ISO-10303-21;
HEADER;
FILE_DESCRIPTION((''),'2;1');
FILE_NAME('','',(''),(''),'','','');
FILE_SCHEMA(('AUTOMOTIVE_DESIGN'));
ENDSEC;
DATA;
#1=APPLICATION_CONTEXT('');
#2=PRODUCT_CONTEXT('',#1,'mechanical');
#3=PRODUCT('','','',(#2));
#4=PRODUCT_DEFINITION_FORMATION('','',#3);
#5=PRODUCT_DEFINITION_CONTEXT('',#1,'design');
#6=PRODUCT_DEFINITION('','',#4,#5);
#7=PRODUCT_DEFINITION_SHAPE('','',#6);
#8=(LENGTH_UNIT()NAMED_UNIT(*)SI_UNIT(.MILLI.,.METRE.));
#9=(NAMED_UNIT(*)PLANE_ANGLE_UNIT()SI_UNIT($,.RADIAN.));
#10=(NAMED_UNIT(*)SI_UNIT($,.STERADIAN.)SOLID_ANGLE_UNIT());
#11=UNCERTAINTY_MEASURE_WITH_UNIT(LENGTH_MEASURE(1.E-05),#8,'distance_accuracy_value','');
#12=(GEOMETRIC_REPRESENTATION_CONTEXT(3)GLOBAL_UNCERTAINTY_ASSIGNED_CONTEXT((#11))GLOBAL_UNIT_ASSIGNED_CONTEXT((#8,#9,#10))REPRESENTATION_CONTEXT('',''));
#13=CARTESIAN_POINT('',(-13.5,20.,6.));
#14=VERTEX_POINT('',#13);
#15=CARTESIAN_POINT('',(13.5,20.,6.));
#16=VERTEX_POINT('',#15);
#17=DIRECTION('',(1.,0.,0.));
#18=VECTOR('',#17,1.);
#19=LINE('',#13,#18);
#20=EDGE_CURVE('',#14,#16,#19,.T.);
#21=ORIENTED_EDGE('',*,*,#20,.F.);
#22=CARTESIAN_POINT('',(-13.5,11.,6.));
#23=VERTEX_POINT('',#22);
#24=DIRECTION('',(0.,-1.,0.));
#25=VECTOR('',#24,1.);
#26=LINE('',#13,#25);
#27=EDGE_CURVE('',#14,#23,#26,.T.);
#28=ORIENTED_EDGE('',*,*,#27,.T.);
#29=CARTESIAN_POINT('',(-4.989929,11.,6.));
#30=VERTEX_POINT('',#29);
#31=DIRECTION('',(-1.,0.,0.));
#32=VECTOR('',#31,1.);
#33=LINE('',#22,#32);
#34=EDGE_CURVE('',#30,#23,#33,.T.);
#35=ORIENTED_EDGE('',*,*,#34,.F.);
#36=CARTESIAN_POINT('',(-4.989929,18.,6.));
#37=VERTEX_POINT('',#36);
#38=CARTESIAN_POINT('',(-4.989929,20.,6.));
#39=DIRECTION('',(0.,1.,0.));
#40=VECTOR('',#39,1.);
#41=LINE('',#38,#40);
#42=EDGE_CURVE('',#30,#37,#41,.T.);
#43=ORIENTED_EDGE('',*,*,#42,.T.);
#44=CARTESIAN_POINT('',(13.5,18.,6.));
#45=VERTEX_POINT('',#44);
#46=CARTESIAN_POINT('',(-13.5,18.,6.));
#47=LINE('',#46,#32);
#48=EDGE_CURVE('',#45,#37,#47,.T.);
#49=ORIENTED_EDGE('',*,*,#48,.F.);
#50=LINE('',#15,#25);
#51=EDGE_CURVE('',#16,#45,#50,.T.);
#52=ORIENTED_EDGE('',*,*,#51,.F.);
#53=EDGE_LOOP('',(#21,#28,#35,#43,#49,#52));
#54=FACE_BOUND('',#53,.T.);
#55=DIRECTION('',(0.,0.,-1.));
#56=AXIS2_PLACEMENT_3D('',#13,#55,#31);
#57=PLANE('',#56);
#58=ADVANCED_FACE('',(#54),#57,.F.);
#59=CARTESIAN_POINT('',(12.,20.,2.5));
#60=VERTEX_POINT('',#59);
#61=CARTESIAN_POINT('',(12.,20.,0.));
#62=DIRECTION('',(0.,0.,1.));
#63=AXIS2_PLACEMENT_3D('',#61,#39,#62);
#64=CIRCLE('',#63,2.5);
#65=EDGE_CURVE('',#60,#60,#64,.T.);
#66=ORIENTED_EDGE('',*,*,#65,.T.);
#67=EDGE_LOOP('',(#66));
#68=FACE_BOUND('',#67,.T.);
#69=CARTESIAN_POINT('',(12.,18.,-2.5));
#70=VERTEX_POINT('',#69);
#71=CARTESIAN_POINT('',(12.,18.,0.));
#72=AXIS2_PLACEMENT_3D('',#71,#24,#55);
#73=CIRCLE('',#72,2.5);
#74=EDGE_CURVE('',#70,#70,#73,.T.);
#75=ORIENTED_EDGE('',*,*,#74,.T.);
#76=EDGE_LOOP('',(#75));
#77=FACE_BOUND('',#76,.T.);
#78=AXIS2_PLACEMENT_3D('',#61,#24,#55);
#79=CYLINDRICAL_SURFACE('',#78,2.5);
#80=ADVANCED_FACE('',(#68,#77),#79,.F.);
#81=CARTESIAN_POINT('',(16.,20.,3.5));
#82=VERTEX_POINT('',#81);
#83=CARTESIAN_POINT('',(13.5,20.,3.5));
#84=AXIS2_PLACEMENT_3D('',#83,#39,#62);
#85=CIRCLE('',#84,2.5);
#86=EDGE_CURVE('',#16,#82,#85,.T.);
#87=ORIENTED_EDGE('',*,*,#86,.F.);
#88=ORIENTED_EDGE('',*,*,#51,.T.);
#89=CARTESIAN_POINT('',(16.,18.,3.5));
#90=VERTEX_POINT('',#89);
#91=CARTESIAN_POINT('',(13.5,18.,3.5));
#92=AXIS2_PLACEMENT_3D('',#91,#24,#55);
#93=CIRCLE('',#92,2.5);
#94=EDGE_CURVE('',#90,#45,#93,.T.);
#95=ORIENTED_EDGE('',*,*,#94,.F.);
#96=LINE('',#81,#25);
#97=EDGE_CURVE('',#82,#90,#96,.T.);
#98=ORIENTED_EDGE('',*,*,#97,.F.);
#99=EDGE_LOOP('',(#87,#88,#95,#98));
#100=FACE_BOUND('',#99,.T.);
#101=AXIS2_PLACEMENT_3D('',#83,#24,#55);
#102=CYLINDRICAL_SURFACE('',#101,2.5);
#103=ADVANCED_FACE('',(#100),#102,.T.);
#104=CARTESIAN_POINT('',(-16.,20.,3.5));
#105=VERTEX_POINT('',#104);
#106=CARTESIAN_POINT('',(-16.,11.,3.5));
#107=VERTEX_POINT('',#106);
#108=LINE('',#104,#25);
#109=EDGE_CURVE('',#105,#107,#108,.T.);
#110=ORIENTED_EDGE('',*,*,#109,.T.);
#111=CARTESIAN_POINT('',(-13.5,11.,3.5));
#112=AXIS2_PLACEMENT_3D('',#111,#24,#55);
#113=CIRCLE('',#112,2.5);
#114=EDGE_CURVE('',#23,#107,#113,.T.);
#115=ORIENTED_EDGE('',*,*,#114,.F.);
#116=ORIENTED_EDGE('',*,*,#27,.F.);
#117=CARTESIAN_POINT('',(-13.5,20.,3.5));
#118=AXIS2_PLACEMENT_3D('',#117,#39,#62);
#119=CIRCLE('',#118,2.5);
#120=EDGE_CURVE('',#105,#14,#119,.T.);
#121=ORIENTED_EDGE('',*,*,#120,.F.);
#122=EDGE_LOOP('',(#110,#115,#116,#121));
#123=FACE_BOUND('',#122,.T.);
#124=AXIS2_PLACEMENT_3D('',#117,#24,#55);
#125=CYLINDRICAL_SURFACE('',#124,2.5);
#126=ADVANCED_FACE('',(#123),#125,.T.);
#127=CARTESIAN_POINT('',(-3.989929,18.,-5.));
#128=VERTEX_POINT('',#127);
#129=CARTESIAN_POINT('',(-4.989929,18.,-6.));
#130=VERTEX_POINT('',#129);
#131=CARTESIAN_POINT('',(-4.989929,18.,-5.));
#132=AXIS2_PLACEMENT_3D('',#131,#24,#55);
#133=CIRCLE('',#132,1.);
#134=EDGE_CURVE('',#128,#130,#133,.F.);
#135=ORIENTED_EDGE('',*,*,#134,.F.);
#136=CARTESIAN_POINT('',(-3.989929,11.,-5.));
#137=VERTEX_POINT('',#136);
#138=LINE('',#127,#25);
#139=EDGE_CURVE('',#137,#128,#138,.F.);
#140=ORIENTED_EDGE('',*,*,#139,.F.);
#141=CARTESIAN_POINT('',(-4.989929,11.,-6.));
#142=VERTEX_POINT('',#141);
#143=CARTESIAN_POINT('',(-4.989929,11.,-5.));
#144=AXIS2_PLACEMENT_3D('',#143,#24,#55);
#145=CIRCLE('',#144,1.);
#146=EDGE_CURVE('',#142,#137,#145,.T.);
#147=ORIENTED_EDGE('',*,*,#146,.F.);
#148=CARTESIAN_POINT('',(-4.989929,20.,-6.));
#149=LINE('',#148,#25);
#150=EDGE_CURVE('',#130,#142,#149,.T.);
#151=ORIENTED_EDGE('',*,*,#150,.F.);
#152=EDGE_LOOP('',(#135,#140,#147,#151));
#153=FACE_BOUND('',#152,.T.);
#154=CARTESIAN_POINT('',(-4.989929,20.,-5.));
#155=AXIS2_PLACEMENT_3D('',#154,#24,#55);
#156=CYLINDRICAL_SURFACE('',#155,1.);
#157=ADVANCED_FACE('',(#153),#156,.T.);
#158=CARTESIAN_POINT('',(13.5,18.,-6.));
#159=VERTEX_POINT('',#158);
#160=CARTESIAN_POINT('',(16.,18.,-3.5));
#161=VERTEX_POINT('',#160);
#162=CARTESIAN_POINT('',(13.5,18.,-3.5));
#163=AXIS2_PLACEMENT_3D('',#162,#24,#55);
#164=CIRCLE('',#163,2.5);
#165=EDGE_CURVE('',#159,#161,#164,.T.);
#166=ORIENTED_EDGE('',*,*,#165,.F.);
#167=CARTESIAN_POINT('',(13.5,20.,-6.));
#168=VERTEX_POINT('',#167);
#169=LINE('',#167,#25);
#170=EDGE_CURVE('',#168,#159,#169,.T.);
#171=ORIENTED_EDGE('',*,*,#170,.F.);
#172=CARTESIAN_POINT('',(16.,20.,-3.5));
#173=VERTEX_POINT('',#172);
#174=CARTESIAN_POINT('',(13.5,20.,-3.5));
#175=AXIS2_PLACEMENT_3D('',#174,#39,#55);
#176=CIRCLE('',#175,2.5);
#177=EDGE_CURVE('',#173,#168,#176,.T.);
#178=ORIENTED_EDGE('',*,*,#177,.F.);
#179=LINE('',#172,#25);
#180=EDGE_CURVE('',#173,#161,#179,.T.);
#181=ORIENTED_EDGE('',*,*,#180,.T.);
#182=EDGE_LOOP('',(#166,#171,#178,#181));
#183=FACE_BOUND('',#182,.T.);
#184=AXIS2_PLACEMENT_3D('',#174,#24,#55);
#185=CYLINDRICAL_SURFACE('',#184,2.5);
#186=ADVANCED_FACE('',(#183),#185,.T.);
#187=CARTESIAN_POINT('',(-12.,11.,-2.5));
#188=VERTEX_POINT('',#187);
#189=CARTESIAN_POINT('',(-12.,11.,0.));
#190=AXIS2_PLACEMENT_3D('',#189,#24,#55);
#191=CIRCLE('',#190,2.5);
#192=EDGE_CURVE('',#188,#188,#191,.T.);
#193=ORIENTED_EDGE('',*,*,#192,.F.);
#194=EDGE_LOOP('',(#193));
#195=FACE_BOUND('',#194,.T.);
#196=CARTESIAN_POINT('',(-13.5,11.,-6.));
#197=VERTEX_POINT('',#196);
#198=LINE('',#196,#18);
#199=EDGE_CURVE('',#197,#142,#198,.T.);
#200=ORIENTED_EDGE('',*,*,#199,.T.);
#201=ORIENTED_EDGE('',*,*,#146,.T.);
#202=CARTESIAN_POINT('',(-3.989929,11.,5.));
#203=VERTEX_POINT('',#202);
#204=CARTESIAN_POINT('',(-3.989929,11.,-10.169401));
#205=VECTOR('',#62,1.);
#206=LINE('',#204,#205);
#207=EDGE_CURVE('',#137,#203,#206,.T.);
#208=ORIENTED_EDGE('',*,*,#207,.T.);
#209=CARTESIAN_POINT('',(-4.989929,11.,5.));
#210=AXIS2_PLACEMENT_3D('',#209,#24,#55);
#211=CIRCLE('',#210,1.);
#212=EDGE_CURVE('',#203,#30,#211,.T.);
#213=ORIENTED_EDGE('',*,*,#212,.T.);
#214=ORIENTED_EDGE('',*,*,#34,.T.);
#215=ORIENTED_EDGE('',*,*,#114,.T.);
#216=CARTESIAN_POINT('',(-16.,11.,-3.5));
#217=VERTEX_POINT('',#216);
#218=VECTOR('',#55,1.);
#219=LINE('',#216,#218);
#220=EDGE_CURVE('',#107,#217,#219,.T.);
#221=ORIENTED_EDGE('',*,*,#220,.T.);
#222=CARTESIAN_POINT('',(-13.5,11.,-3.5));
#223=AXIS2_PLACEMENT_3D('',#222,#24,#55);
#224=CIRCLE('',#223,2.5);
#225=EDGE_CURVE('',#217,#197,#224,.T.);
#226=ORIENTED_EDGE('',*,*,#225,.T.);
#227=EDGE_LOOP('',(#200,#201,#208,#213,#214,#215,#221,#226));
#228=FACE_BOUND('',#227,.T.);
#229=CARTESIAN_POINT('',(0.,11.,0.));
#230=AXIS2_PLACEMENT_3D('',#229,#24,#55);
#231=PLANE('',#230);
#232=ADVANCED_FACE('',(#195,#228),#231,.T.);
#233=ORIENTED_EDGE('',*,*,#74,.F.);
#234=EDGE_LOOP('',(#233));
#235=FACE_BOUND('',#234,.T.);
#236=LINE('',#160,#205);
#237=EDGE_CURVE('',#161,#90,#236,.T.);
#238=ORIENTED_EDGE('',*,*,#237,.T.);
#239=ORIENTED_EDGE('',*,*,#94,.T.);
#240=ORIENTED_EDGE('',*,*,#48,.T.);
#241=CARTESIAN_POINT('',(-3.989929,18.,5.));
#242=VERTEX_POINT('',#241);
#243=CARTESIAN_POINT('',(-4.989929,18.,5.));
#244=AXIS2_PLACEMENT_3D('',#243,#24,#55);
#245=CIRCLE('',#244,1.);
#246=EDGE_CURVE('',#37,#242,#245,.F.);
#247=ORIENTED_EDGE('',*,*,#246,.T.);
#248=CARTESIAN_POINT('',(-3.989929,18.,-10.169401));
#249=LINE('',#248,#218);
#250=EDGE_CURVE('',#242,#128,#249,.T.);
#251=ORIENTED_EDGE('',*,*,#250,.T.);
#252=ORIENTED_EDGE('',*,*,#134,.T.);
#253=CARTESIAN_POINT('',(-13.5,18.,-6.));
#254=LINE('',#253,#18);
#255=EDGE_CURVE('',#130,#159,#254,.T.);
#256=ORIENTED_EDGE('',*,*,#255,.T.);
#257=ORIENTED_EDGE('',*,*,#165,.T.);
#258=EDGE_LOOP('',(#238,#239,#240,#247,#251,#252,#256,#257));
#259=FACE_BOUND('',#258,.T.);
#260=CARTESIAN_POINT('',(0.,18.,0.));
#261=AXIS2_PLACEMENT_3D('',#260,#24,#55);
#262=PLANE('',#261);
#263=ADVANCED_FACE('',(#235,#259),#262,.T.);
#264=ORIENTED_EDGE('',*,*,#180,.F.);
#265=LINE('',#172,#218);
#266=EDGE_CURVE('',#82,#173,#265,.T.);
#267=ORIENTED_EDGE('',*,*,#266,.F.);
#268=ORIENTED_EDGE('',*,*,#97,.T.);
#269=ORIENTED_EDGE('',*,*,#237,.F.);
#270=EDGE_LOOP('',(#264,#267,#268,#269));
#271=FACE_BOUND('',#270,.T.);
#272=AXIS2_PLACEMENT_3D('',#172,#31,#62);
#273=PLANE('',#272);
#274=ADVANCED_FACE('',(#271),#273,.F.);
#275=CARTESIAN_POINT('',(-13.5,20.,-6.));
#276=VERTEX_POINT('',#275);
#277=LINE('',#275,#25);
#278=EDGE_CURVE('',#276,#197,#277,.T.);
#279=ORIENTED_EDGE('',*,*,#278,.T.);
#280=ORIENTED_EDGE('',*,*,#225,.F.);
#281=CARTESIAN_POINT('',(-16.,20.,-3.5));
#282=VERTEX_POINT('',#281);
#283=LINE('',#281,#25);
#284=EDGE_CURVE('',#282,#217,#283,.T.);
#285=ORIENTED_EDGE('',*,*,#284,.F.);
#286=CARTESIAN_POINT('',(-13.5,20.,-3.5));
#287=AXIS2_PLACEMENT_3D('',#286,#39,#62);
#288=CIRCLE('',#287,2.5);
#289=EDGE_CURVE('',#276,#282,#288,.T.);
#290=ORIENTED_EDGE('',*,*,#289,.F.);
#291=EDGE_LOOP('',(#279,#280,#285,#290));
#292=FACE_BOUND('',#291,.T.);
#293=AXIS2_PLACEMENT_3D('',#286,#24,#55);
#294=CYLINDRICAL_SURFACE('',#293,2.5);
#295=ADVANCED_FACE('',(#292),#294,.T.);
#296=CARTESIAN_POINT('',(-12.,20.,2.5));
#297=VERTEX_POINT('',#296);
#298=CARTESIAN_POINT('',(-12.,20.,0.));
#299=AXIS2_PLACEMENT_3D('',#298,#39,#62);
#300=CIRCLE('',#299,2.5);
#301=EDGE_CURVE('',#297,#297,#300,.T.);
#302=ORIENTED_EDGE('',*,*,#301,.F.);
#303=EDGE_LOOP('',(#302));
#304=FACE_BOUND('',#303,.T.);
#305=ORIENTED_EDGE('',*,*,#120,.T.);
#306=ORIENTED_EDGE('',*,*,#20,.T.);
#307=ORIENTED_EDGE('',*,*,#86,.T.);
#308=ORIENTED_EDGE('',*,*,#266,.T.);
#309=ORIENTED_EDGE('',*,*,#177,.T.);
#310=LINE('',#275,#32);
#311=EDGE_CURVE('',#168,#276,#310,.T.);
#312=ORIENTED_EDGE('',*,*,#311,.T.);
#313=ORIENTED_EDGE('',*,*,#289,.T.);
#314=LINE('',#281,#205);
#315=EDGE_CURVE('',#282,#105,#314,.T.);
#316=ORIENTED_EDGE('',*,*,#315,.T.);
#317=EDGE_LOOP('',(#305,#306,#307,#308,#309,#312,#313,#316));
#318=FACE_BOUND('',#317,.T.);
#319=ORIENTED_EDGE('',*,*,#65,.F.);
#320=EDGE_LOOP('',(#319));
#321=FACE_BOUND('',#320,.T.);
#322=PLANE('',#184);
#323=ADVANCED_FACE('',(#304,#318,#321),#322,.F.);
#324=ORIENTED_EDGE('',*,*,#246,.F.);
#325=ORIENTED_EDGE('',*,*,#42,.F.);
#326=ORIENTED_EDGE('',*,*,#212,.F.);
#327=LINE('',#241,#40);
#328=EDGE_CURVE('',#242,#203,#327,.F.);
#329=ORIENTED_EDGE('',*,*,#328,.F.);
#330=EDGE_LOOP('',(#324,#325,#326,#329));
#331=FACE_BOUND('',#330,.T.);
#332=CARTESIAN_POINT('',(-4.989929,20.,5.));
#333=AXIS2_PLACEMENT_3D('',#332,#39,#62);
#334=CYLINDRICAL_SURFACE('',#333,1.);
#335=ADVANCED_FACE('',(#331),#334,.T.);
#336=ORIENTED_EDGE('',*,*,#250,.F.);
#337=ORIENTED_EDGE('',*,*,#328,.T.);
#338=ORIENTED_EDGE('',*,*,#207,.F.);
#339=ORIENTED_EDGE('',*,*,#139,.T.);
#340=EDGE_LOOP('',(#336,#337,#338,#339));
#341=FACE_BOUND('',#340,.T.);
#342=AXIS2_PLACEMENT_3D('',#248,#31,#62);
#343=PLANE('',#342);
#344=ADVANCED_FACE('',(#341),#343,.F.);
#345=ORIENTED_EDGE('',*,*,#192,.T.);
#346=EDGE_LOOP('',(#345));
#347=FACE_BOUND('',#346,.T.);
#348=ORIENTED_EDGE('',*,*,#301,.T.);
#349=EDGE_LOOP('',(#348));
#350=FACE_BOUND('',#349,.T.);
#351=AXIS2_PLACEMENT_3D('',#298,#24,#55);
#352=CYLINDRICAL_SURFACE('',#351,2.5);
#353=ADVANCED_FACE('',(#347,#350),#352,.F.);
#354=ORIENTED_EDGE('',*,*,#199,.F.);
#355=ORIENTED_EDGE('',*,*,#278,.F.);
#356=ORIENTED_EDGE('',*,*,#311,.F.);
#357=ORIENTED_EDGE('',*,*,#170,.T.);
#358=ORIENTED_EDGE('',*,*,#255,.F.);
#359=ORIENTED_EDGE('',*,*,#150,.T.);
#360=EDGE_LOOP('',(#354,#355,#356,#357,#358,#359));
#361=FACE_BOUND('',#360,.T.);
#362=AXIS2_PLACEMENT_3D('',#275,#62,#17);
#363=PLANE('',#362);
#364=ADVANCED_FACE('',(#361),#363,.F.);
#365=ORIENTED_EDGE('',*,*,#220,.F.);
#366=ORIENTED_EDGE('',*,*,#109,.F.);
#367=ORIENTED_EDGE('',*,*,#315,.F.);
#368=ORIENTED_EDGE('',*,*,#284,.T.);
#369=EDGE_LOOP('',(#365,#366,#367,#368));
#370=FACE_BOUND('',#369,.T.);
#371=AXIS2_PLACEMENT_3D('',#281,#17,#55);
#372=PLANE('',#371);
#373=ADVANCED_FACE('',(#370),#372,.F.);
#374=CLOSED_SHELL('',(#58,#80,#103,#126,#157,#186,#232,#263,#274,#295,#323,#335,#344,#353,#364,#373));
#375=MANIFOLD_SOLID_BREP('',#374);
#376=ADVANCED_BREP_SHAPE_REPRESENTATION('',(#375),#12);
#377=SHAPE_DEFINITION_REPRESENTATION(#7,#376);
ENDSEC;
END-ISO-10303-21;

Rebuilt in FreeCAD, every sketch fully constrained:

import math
import FreeCAD as App
import Part
import Sketcher
Q = App.Units.Quantity


def edges_at(feature, points):
    """Names of the edges that pass closest to the given points."""
    edges = feature.Shape.Edges
    near = lambda p: min(range(len(edges)), key=lambda i: edges[i].distToShape(Part.Vertex(*p))[0])
    return sorted({f"Edge{near(p) + 1}" for p in points})


def add_polygon(sketch, points):
    """Adds a closed chain of lines whose ends are joined by coincident constraints."""
    first, n = sketch.GeometryCount, len(points)
    for a, b in zip(points, points[1:] + points[:1]):
        sketch.addGeometry(Part.LineSegment(App.Vector(*a, 0), App.Vector(*b, 0)), False)
    for i in range(n):
        sketch.addConstraint(Sketcher.Constraint("Coincident", first + i, 2, first + (i + 1) % n, 1))

doc = App.newDocument("Part")
body = doc.addObject("PartDesign::Body", "Body")

# Sketch on XZ plane
sketch1 = body.newObject("Sketcher::SketchObject", "Sketch")
sketch1.AttachmentSupport = (doc.getObject("XZ_Plane"), [""])
sketch1.MapMode = "FlatFace"
sketch1.addGeometry(Part.LineSegment(App.Vector(13.5, -6, 0), App.Vector(-13.5, -6, 0)), False)
sketch1.addGeometry(Part.ArcOfCircle(Part.Circle(App.Vector(-13.5, -3.5, 0), App.Vector(0, 0, 1), 2.5), math.radians(180), math.radians(270)), False)
sketch1.addGeometry(Part.LineSegment(App.Vector(-16, -3.5, 0), App.Vector(-16, 3.5, 0)), False)
sketch1.addGeometry(Part.ArcOfCircle(Part.Circle(App.Vector(-13.5, 3.5, 0), App.Vector(0, 0, 1), 2.5), math.radians(90), math.radians(180)), False)
sketch1.addGeometry(Part.LineSegment(App.Vector(-13.5, 6, 0), App.Vector(13.5, 6, 0)), False)
sketch1.addGeometry(Part.ArcOfCircle(Part.Circle(App.Vector(13.5, 3.5, 0), App.Vector(0, 0, 1), 2.5), math.radians(0), math.radians(90)), False)
sketch1.addGeometry(Part.LineSegment(App.Vector(16, 3.5, 0), App.Vector(16, -3.5, 0)), False)
sketch1.addGeometry(Part.ArcOfCircle(Part.Circle(App.Vector(13.5, -3.5, 0), App.Vector(0, 0, 1), 2.5), math.radians(-90), math.radians(0)), False)
sketch1.addGeometry(Part.Circle(App.Vector(12, 0, 0), App.Vector(0, 0, 1), 2.5), False)
sketch1.addGeometry(Part.Circle(App.Vector(-12, 0, 0), App.Vector(0, 0, 1), 2.5), False)
sketch1.addConstraint(Sketcher.Constraint("Tangent", 0, 2, 1, 2))
sketch1.addConstraint(Sketcher.Constraint("Tangent", 1, 1, 2, 1))
sketch1.addConstraint(Sketcher.Constraint("Tangent", 2, 2, 3, 2))
sketch1.addConstraint(Sketcher.Constraint("Tangent", 3, 1, 4, 1))
sketch1.addConstraint(Sketcher.Constraint("Tangent", 4, 2, 5, 2))
sketch1.addConstraint(Sketcher.Constraint("Tangent", 5, 1, 6, 1))
sketch1.addConstraint(Sketcher.Constraint("Tangent", 6, 2, 7, 2))
sketch1.addConstraint(Sketcher.Constraint("Tangent", 7, 1, 0, 1))
sketch1.addConstraint(Sketcher.Constraint("Horizontal", 0))
sketch1.addConstraint(Sketcher.Constraint("Vertical", 2))
sketch1.addConstraint(Sketcher.Constraint("Horizontal", 4))
sketch1.addConstraint(Sketcher.Constraint("Vertical", 6))
sketch1.addConstraint(Sketcher.Constraint("Equal", 1, 3))
sketch1.addConstraint(Sketcher.Constraint("Equal", 3, 5))
sketch1.addConstraint(Sketcher.Constraint("Equal", 5, 7))
sketch1.addConstraint(Sketcher.Constraint("Equal", 7, 8))
sketch1.addConstraint(Sketcher.Constraint("Equal", 8, 9))
sketch1.addConstraint(Sketcher.Constraint("Symmetric", 1, 3, 5, 3, -1, 1))
sketch1.addConstraint(Sketcher.Constraint("Symmetric", 8, 3, 9, 3, -1, 1))
sketch1.addConstraint(Sketcher.Constraint("PointOnObject", 8, 3, -1))
sketch1.addConstraint(Sketcher.Constraint("Diameter", 8, Q("5 mm")))
sketch1.addConstraint(Sketcher.Constraint("DistanceX", 0, 2, 0, 1, Q("27 mm")))
sketch1.addConstraint(Sketcher.Constraint("DistanceY", 2, 1, 2, 2, Q("7 mm")))
sketch1.addConstraint(Sketcher.Constraint("DistanceX", -1, 1, 8, 3, Q("12 mm")))
pad1 = body.newObject("PartDesign::Pad", "Pad")
pad1.Profile = sketch1
pad1.Length = 20
pad1.Reversed = True

# Sketch on XZ plane
sketch2 = body.newObject("Sketcher::SketchObject", "Sketch001")
sketch2.AttachmentSupport = (doc.getObject("XZ_Plane"), [""])
sketch2.MapMode = "FlatFace"
add_polygon(sketch2, [(-3.989929, 10.169401), (-3.989929, -10.169401), (24.675898, -10.169401), (24.675898, 10.169401)])  # lines 0-3
sketch2.addConstraint(Sketcher.Constraint("Vertical", 0))
sketch2.addConstraint(Sketcher.Constraint("Horizontal", 1))
sketch2.addConstraint(Sketcher.Constraint("Vertical", 2))
sketch2.addConstraint(Sketcher.Constraint("Horizontal", 3))
sketch2.addConstraint(Sketcher.Constraint("DistanceY", 0, 2, 0, 1, Q("20.338802 mm")))
sketch2.addConstraint(Sketcher.Constraint("DistanceY", 0, 2, -1, 1, Q("10.169401 mm")))
sketch2.addConstraint(Sketcher.Constraint("DistanceX", -1, 1, 1, 2, Q("24.675898 mm")))
sketch2.addConstraint(Sketcher.Constraint("DistanceX", 1, 1, 1, 2, Q("28.665827 mm")))
pocket1 = body.newObject("PartDesign::Pocket", "Pocket")
pocket1.Profile = sketch2
pocket1.Length = 18

# Sketch on XZ plane
sketch3 = body.newObject("Sketcher::SketchObject", "Sketch002")
sketch3.AttachmentSupport = (doc.getObject("XZ_Plane"), [""])
sketch3.MapMode = "FlatFace"
add_polygon(sketch3, [(-16.395784, 7.556127), (-16.395784, -7.630105), (4.891179, -7.630105), (4.891179, 7.556127)])  # lines 0-3
sketch3.addConstraint(Sketcher.Constraint("Vertical", 0))
sketch3.addConstraint(Sketcher.Constraint("Horizontal", 1))
sketch3.addConstraint(Sketcher.Constraint("Vertical", 2))
sketch3.addConstraint(Sketcher.Constraint("Horizontal", 3))
sketch3.addConstraint(Sketcher.Constraint("DistanceY", 0, 2, 0, 1, Q("15.186231 mm")))
sketch3.addConstraint(Sketcher.Constraint("DistanceX", 1, 1, 1, 2, Q("21.286963 mm")))
sketch3.addConstraint(Sketcher.Constraint("DistanceX", -1, 1, 1, 2, Q("4.891179 mm")))
sketch3.addConstraint(Sketcher.Constraint("DistanceY", 0, 2, -1, 1, Q("7.630105 mm")))
pocket2 = body.newObject("PartDesign::Pocket", "Pocket001")
pocket2.Profile = sketch3
pocket2.Length = 11
doc.recompute()

fillet = body.newObject("PartDesign::Fillet", "Fillet")
fillet.Base = (pocket2, edges_at(pocket2, [(-3.99, 14.5, -6), (-3.99, 14.5, 6)]))
fillet.Radius = 1

doc.recompute()
